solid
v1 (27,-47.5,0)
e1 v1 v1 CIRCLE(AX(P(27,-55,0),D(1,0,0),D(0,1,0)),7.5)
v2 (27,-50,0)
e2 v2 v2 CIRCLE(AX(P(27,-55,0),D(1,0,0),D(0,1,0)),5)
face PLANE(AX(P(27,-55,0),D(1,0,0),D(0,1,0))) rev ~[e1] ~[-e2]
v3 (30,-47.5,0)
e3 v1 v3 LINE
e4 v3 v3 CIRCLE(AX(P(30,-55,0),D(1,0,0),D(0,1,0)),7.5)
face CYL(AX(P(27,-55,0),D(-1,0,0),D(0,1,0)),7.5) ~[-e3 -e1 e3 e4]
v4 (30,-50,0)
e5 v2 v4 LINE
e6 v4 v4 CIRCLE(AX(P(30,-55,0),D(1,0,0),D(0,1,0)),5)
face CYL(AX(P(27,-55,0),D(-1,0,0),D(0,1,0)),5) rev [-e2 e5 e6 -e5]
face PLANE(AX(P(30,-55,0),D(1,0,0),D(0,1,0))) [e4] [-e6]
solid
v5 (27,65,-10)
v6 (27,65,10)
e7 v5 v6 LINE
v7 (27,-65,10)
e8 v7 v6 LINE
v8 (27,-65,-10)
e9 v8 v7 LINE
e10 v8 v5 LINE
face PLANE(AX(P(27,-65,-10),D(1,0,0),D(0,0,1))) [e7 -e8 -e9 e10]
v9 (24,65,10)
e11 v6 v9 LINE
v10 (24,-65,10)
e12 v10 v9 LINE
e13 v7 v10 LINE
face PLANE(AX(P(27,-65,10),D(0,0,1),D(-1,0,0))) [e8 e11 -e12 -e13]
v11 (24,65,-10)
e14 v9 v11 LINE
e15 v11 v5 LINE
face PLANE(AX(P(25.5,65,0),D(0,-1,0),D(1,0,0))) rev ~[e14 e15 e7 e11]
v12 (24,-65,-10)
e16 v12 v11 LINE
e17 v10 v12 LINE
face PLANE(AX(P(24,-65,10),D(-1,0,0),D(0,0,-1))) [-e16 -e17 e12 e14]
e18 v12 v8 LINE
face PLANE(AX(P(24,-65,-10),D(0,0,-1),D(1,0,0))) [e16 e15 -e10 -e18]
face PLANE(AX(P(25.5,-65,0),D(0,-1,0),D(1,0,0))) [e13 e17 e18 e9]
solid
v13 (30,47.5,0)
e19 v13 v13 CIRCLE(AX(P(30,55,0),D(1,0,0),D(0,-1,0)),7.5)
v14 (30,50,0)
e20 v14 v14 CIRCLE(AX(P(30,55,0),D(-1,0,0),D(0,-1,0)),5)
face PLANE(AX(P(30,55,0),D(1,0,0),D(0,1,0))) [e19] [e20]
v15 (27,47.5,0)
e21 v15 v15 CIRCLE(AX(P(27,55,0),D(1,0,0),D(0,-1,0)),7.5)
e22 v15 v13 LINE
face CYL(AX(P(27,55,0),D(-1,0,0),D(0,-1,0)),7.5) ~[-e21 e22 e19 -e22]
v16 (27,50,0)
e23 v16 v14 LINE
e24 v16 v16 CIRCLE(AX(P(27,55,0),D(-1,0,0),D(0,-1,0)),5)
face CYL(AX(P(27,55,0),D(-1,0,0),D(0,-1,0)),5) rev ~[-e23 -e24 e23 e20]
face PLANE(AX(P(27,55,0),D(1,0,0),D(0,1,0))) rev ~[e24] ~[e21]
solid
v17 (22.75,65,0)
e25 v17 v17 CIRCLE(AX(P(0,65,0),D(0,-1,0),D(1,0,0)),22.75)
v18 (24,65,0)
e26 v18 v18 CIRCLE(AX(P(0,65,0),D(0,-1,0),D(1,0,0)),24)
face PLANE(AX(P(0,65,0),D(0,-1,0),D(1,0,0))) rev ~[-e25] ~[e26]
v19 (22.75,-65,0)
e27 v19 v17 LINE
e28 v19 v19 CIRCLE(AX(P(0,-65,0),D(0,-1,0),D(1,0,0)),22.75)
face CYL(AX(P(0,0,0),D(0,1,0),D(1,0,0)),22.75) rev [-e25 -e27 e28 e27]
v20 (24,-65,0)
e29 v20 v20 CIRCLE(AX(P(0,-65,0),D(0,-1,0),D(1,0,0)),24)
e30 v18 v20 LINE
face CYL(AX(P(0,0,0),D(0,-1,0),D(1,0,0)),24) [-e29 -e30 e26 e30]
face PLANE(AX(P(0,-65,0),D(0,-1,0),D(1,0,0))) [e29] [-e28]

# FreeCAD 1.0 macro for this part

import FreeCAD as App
import Part
import Sketcher

V = App.Vector
Q = App.Units.Quantity

doc = App.newDocument("Part")
body = doc.addObject("PartDesign::Body", "Body")

sketch1 = body.newObject("Sketcher::SketchObject", "Sketch")
sketch1.AttachmentSupport = (doc.getObject("XZ_Plane"), [""])
sketch1.MapMode = "FlatFace"
sketch1.addGeometry([
    Part.Circle(V(0, 0, 0), V(0, 0, 1), 24),
    Part.Circle(V(0, 0, 0), V(0, 0, 1), 23),
], False)
sketch1.addConstraint([
    Sketcher.Constraint("Coincident", 0, 3, -1, 1),
    Sketcher.Constraint("Coincident", 1, 3, -1, 1),
    Sketcher.Constraint("Diameter", 0, Q("48 mm")),
    Sketcher.Constraint("Diameter", 1, Q("45.5 mm")),
])
pad1 = body.newObject("PartDesign::Pad", "Pad")
pad1.Profile = sketch1
pad1.Length = 130
pad1.Midplane = True
body2 = doc.addObject("PartDesign::Body", "Body001")

sketch2 = body2.newObject("Sketcher::SketchObject", "Sketch001")
sketch2.AttachmentSupport = (doc.getObject("XZ_Plane001"), [""])
sketch2.MapMode = "FlatFace"
sketch2.AttachmentOffset = App.Placement(V(0, 0, 65), App.Rotation())
sketch2.addGeometry([
    Part.LineSegment(V(24, 10, 0), V(24, -10, 0)),
    Part.LineSegment(V(24, -10, 0), V(27, -10, 0)),
    Part.LineSegment(V(27, -10, 0), V(27, 10, 0)),
    Part.LineSegment(V(27, 10, 0), V(24, 10, 0)),
], False)
sketch2.addConstraint([
    Sketcher.Constraint("Coincident", 0, 2, 1, 1),
    Sketcher.Constraint("Coincident", 1, 2, 2, 1),
    Sketcher.Constraint("Coincident", 2, 2, 3, 1),
    Sketcher.Constraint("Coincident", 3, 2, 0, 1),
    Sketcher.Constraint("Vertical", 0),
    Sketcher.Constraint("Horizontal", 1),
    Sketcher.Constraint("Vertical", 2),
    Sketcher.Constraint("Horizontal", 3),
    Sketcher.Constraint("DistanceX", 1, 1, 1, 2, Q("3 mm")),
    Sketcher.Constraint("DistanceY", 0, 2, 0, 1, Q("20 mm")),
    Sketcher.Constraint("DistanceX", -1, 1, 0, 2, Q("24 mm")),
    Sketcher.Constraint("DistanceY", 0, 2, -1, 1, Q("10 mm")),
])
pad2 = body2.newObject("PartDesign::Pad", "Pad001")
pad2.Profile = sketch2
pad2.Length = 130
pad2.Reversed = True
body3 = doc.addObject("PartDesign::Body", "Body002")

sketch3 = body3.newObject("Sketcher::SketchObject", "Sketch002")
sketch3.AttachmentSupport = (doc.getObject("YZ_Plane002"), [""])
sketch3.MapMode = "FlatFace"
sketch3.AttachmentOffset = App.Placement(V(0, 0, 27), App.Rotation())
sketch3.addGeometry([
    Part.Circle(V(-55, 0, 0), V(0, 0, 1), 8),
    Part.Circle(V(-55, 0, 0), V(0, 0, 1), 5),
], False)
sketch3.addConstraint([
    Sketcher.Constraint("Coincident", 1, 3, 0, 3),
    Sketcher.Constraint("PointOnObject", 0, 3, -1),
    Sketcher.Constraint("Diameter", 0, Q("15 mm")),
    Sketcher.Constraint("Diameter", 1, Q("10 mm")),
    Sketcher.Constraint("DistanceX", 0, 3, -1, 1, Q("55 mm")),
])
pad3 = body3.newObject("PartDesign::Pad", "Pad002")
pad3.Profile = sketch3
pad3.Length = 3
body4 = doc.addObject("PartDesign::Body", "Body003")

sketch4 = body4.newObject("Sketcher::SketchObject", "Sketch003")
sketch4.AttachmentSupport = (doc.getObject("YZ_Plane003"), [""])
sketch4.MapMode = "FlatFace"
sketch4.AttachmentOffset = App.Placement(V(0, 0, 27), App.Rotation())
sketch4.addGeometry([
    Part.Circle(V(55, 0, 0), V(0, 0, 1), 8),
    Part.Circle(V(55, 0, 0), V(0, 0, 1), 5),
], False)
sketch4.addConstraint([
    Sketcher.Constraint("Coincident", 1, 3, 0, 3),
    Sketcher.Constraint("PointOnObject", 0, 3, -1),
    Sketcher.Constraint("Diameter", 0, Q("15 mm")),
    Sketcher.Constraint("Diameter", 1, Q("10 mm")),
    Sketcher.Constraint("DistanceX", -1, 1, 0, 3, Q("55 mm")),
])
pad4 = body4.newObject("PartDesign::Pad", "Pad003")
pad4.Profile = sketch4
pad4.Length = 3

doc.recompute()
